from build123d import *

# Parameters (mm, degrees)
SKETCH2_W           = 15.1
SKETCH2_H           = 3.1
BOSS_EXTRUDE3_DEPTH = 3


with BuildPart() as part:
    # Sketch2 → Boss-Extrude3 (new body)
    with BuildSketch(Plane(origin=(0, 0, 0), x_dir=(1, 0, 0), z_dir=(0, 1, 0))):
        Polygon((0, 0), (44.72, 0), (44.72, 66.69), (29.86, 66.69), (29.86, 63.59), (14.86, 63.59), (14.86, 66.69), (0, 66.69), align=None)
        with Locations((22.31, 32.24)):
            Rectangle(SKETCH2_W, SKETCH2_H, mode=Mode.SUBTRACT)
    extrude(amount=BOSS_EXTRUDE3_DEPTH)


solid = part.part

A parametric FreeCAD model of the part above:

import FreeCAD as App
import Part
import Sketcher


def add_polygon(sketch, points):
    """Adds a closed chain of lines whose ends are joined by coincident constraints."""
    first, n = sketch.GeometryCount, len(points)
    for a, b in zip(points, points[1:] + points[:1]):
        sketch.addGeometry(Part.LineSegment(App.Vector(*a, 0), App.Vector(*b, 0)), False)
    for i in range(n):
        sketch.addConstraint(Sketcher.Constraint("Coincident", first + i, 2, first + (i + 1) % n, 1))

doc = App.newDocument("Part")
body = doc.addObject("PartDesign::Body", "Body")

sketch1 = body.newObject("Sketcher::SketchObject", "Sketch")
sketch1.AttachmentSupport = (doc.getObject("XZ_Plane"), [""])
sketch1.MapMode = "FlatFace"
add_polygon(sketch1, [(0, 0), (44.72, 0), (44.72, -66.69), (29.86, -66.69), (29.86, -63.59), (14.86, -63.59), (14.86, -66.69), (0, -66.69)])
add_polygon(sketch1, [(29.86, -30.69), (14.76, -30.69), (14.76, -33.79), (29.86, -33.79)])
sketch1.addConstraint(Sketcher.Constraint("Horizontal", 0))
sketch1.addConstraint(Sketcher.Constraint("Vertical", 1))
sketch1.addConstraint(Sketcher.Constraint("Horizontal", 2))
sketch1.addConstraint(Sketcher.Constraint("Vertical", 3))
sketch1.addConstraint(Sketcher.Constraint("Horizontal", 4))
sketch1.addConstraint(Sketcher.Constraint("Vertical", 5))
sketch1.addConstraint(Sketcher.Constraint("Horizontal", 6))
sketch1.addConstraint(Sketcher.Constraint("Vertical", 7))
sketch1.addConstraint(Sketcher.Constraint("Horizontal", 8))
sketch1.addConstraint(Sketcher.Constraint("Vertical", 9))
sketch1.addConstraint(Sketcher.Constraint("Horizontal", 10))
sketch1.addConstraint(Sketcher.Constraint("Vertical", 11))
sketch1.addConstraint(Sketcher.Constraint("Coincident", 7, 2, -1, 1))
sketch1.addConstraint(Sketcher.Constraint("Horizontal", 2, 2, 5, 2))
sketch1.addConstraint(Sketcher.Constraint("Vertical", 3, 2, 10, 2))
sketch1.addConstraint(Sketcher.Constraint("Equal", 2, 6))
sketch1.addConstraint(Sketcher.Constraint("Equal", 5, 9))
sketch1.addConstraint(Sketcher.Constraint("DistanceX", 4, 2, 4, 1, 15.0))
sketch1.addConstraint(Sketcher.Constraint("DistanceX", 8, 2, 8, 1, 15.1))
sketch1.addConstraint(Sketcher.Constraint("DistanceY", 3, 1, 3, 2, 3.1))
sketch1.addConstraint(Sketcher.Constraint("DistanceY", 5, 2, 8, 2, 36.0))
sketch1.addConstraint(Sketcher.Constraint("DistanceX", 0, 1, 0, 2, 44.72))
sketch1.addConstraint(Sketcher.Constraint("DistanceY", 1, 2, 1, 1, 66.69))
pad1 = body.newObject("PartDesign::Pad", "Pad")
pad1.Profile = sketch1
pad1.Length = 3
pad1.Reversed = True

doc.recompute()
